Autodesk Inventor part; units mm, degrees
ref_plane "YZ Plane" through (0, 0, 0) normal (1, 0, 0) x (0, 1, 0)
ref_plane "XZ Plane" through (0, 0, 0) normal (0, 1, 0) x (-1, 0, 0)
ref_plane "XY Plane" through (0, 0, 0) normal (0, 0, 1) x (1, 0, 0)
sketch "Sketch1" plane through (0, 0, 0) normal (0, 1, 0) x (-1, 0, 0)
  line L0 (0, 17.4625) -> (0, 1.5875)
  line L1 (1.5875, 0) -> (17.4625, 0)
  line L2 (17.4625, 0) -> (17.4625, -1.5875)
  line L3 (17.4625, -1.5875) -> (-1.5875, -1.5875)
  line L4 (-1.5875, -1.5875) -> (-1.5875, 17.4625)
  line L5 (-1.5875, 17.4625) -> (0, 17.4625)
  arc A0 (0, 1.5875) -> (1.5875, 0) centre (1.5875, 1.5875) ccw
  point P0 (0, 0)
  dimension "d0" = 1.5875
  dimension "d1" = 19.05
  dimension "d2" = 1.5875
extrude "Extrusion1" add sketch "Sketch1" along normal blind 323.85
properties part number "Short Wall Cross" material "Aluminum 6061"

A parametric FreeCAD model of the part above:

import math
import FreeCAD as App
import Part
import Sketcher

V = App.Vector
Q = App.Units.Quantity

doc = App.newDocument("Part")
body = doc.addObject("PartDesign::Body", "Body")

sketch1 = doc.addObject("Sketcher::SketchObject", "Sketch")
body.addObject(sketch1)
sketch1.AttachmentSupport = (doc.XZ_Plane, [""])
sketch1.MapMode = "FlatFace"
sketch1.addGeometry([
    Part.LineSegment(V(0, 1.6, 0), V(0, 17.5, 0)),
    Part.LineSegment(V(0, 17.5, 0), V(1.6, 17.5, 0)),
    Part.LineSegment(V(1.6, 17.5, 0), V(1.6, -1.6, 0)),
    Part.LineSegment(V(1.6, -1.6, 0), V(-17.5, -1.6, 0)),
    Part.LineSegment(V(-17.5, -1.6, 0), V(-17.5, 0, 0)),
    Part.LineSegment(V(-17.5, 0, 0), V(-1.6, 0, 0)),
    Part.ArcOfCircle(Part.Circle(V(-1.6, 1.6, 0), V(0, 0, 1), 1.6), math.radians(-90), math.radians(0)),
], False)
sketch1.addConstraint([
    Sketcher.Constraint("Coincident", 0, 2, 1, 1),
    Sketcher.Constraint("Coincident", 1, 2, 2, 1),
    Sketcher.Constraint("Coincident", 2, 2, 3, 1),
    Sketcher.Constraint("Coincident", 3, 2, 4, 1),
    Sketcher.Constraint("Coincident", 4, 2, 5, 1),
    Sketcher.Constraint("Tangent", 5, 2, 6, 1),
    Sketcher.Constraint("Tangent", 6, 2, 0, 1),
    Sketcher.Constraint("Vertical", 0),
    Sketcher.Constraint("Horizontal", 1),
    Sketcher.Constraint("Vertical", 2),
    Sketcher.Constraint("Horizontal", 3),
    Sketcher.Constraint("Vertical", 4),
    Sketcher.Constraint("Horizontal", 5),
    Sketcher.Constraint("PointOnObject", 0, 2, -2),
    Sketcher.Constraint("PointOnObject", 4, 2, -1),
    Sketcher.Constraint("Equal", 5, 0),
    Sketcher.Constraint("Equal", 3, 2),
    Sketcher.Constraint("Radius", 6, Q("0.0625 in")),
    Sketcher.Constraint("DistanceX", 3, 2, 3, 1, Q("0.75 in")),
    Sketcher.Constraint("DistanceX", 1, 1, 1, 2, Q("0.0625 in")),
])
pad1 = doc.addObject("PartDesign::Pad", "Pad")
body.addObject(pad1)
pad1.Profile = sketch1
pad1.Length = Q("12.75 in")
pad1.Reversed = True

doc.recompute()
